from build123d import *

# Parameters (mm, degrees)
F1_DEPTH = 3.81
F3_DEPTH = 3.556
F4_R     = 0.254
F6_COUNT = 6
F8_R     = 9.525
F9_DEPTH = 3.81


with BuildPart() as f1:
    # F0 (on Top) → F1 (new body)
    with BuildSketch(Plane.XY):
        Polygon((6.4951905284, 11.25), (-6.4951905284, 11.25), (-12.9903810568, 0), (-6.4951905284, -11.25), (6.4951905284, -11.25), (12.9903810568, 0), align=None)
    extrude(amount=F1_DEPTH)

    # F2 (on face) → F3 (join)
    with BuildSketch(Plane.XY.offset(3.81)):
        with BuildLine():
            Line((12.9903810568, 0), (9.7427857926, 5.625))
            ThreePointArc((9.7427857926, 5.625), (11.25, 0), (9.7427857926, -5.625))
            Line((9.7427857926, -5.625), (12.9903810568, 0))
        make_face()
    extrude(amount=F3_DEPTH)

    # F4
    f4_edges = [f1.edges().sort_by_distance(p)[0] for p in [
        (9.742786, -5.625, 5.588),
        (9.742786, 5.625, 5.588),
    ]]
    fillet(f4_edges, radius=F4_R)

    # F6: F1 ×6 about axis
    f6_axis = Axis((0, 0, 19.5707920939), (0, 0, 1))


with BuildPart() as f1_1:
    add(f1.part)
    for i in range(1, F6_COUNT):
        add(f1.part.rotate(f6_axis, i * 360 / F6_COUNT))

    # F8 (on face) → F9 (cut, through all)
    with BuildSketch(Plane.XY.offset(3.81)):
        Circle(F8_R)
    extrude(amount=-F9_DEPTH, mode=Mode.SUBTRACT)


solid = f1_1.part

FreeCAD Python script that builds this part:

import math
import FreeCAD as App
import Part
import Sketcher
from FreeCAD import Vector
Q = App.Units.Quantity


def edges_at(feature, points):
    """Names of the edges that pass closest to the given points."""
    edges = feature.Shape.Edges
    near = lambda p: min(range(len(edges)), key=lambda i: edges[i].distToShape(Part.Vertex(*p))[0])
    return sorted({f"Edge{near(p) + 1}" for p in points})

doc = App.newDocument("Part")
body = doc.addObject("PartDesign::Body", "Body")

sketch1 = body.newObject("Sketcher::SketchObject", "Sketch")
sketch1.AttachmentSupport = (doc.getObject("XY_Plane"), [""])
sketch1.MapMode = "FlatFace"
sketch1.addGeometry(Part.LineSegment(Vector(6.495191, 11.25, 0), Vector(-6.495191, 11.25, 0)), False)
sketch1.addGeometry(Part.LineSegment(Vector(-6.495191, 11.25, 0), Vector(-12.990381, 0, 0)), False)
sketch1.addGeometry(Part.LineSegment(Vector(-12.990381, 0, 0), Vector(-6.495191, -11.25, 0)), False)
sketch1.addGeometry(Part.LineSegment(Vector(-6.495191, -11.25, 0), Vector(6.495191, -11.25, 0)), False)
sketch1.addGeometry(Part.LineSegment(Vector(6.495191, -11.25, 0), Vector(12.990381, 0, 0)), False)
sketch1.addGeometry(Part.LineSegment(Vector(12.990381, 0, 0), Vector(6.495191, 11.25, 0)), False)
sketch1.addConstraint(Sketcher.Constraint("Coincident", 0, 2, 1, 1))
sketch1.addConstraint(Sketcher.Constraint("Coincident", 1, 2, 2, 1))
sketch1.addConstraint(Sketcher.Constraint("Coincident", 2, 2, 3, 1))
sketch1.addConstraint(Sketcher.Constraint("Coincident", 3, 2, 4, 1))
sketch1.addConstraint(Sketcher.Constraint("Coincident", 4, 2, 5, 1))
sketch1.addConstraint(Sketcher.Constraint("Coincident", 5, 2, 0, 1))
sketch1.addConstraint(Sketcher.Constraint("Horizontal", 0))
sketch1.addConstraint(Sketcher.Constraint("Horizontal", 3))
sketch1.addConstraint(Sketcher.Constraint("Symmetric", 0, 2, 3, 2, -1, 1))
sketch1.addConstraint(Sketcher.Constraint("Symmetric", 1, 2, 4, 2, -1, 1))
sketch1.addConstraint(Sketcher.Constraint("PointOnObject", 1, 2, -1))
sketch1.addConstraint(Sketcher.Constraint("Parallel", 2, 5))
sketch1.addConstraint(Sketcher.Constraint("Vertical", 0, 2, 2, 2))
sketch1.addConstraint(Sketcher.Constraint("Angle", 1, Q("-120 deg")))
sketch1.addConstraint(Sketcher.Constraint("DistanceX", 0, 2, 0, 1, Q("12.990381 mm")))
sketch1.addConstraint(Sketcher.Constraint("DistanceY", -1, 1, 0, 2, Q("11.25 mm")))
pad1 = body.newObject("PartDesign::Pad", "Pad")
pad1.Profile = sketch1
pad1.Length = Q("0.15 in")

sketch2 = body.newObject("Sketcher::SketchObject", "Sketch001")
sketch2.AttachmentSupport = (doc.getObject("XY_Plane"), [""])
sketch2.MapMode = "FlatFace"
sketch2.AttachmentOffset = App.Placement(Vector(0, 0, 0.15 * 25.4), App.Rotation())
sketch2.addGeometry(Part.LineSegment(Vector(12.990381, 0, 0), Vector(9.742786, 5.625, 0)), False)
sketch2.addGeometry(Part.ArcOfCircle(Part.Circle(Vector(0, 0, 0), Vector(0, 0, 1), 11.25), math.radians(-30), math.radians(30)), False)
sketch2.addGeometry(Part.LineSegment(Vector(9.742786, -5.625, 0), Vector(12.990381, 0, 0)), False)
sketch2.addConstraint(Sketcher.Constraint("Tangent", 0, 2, 1, 2))
sketch2.addConstraint(Sketcher.Constraint("Tangent", 1, 1, 2, 1))
sketch2.addConstraint(Sketcher.Constraint("Coincident", 2, 2, 0, 1))
sketch2.addConstraint(Sketcher.Constraint("Coincident", 1, 3, -1, 1))
sketch2.addConstraint(Sketcher.Constraint("PointOnObject", 2, 2, -1))
sketch2.addConstraint(Sketcher.Constraint("Angle", 0, Q("120 deg")))
sketch2.addConstraint(Sketcher.Constraint("Radius", 1, Q("11.25 mm")))
pad2 = body.newObject("PartDesign::Pad", "Pad001")
pad2.Profile = sketch2
pad2.Length = Q("0.14 in")
doc.recompute()

fillet = body.newObject("PartDesign::Fillet", "Fillet")
fillet.Base = (pad2, edges_at(pad2, [(9.743, -5.625, 5.588), (9.743, 5.625, 5.588)]))
fillet.Radius = Q("0.01 in")
body2 = doc.addObject("PartDesign::Body", "Body001")
doc.recompute()

body2.BaseFeature = body
doc.recompute()

body3 = doc.addObject("PartDesign::Body", "Body002")
body3.BaseFeature = body
body3.Placement = App.Placement(Vector(0, 0, 0), App.Rotation(Vector(0, 0, 1), 60))
boolean = body2.newObject("PartDesign::Boolean", "Boolean")
boolean.Type = "Fuse"
boolean.addObjects([body3])
doc.recompute()

body4 = doc.addObject("PartDesign::Body", "Body003")
body4.BaseFeature = body
body4.Placement = App.Placement(Vector(0, 0, 0), App.Rotation(Vector(0, 0, 1), 120))
boolean2 = body2.newObject("PartDesign::Boolean", "Boolean001")
boolean2.Type = "Fuse"
boolean2.addObjects([body4])
doc.recompute()

body5 = doc.addObject("PartDesign::Body", "Body004")
body5.BaseFeature = body
body5.Placement = App.Placement(Vector(0, 0, 0), App.Rotation(Vector(0, 0, 1), 180))
boolean3 = body2.newObject("PartDesign::Boolean", "Boolean002")
boolean3.Type = "Fuse"
boolean3.addObjects([body5])
doc.recompute()

body6 = doc.addObject("PartDesign::Body", "Body005")
body6.BaseFeature = body
body6.Placement = App.Placement(Vector(0, 0, 0), App.Rotation(Vector(0, 0, 1), 240))
boolean4 = body2.newObject("PartDesign::Boolean", "Boolean003")
boolean4.Type = "Fuse"
boolean4.addObjects([body6])
doc.recompute()

body.Placement = App.Placement(Vector(0, 0, 0), App.Rotation(Vector(0, 0, 1), 300))
boolean5 = body2.newObject("PartDesign::Boolean", "Boolean004")
boolean5.Type = "Fuse"
boolean5.addObjects([body])

sketch3 = body2.newObject("Sketcher::SketchObject", "Sketch002")
sketch3.AttachmentSupport = (doc.getObject("XY_Plane001"), [""])
sketch3.MapMode = "FlatFace"
sketch3.AttachmentOffset = App.Placement(Vector(0, 0, 0.15 * 25.4), App.Rotation())
sketch3.addGeometry(Part.Circle(Vector(0, 0, 0), Vector(0, 0, 1), 9.525), False)
sketch3.addConstraint(Sketcher.Constraint("Coincident", 0, 3, -1, 1))
sketch3.addConstraint(Sketcher.Constraint("Diameter", 0, Q("0.75 in")))
pocket1 = body2.newObject("PartDesign::Pocket", "Pocket")
pocket1.Profile = sketch3
pocket1.Type = "ThroughAll"

doc.recompute()
